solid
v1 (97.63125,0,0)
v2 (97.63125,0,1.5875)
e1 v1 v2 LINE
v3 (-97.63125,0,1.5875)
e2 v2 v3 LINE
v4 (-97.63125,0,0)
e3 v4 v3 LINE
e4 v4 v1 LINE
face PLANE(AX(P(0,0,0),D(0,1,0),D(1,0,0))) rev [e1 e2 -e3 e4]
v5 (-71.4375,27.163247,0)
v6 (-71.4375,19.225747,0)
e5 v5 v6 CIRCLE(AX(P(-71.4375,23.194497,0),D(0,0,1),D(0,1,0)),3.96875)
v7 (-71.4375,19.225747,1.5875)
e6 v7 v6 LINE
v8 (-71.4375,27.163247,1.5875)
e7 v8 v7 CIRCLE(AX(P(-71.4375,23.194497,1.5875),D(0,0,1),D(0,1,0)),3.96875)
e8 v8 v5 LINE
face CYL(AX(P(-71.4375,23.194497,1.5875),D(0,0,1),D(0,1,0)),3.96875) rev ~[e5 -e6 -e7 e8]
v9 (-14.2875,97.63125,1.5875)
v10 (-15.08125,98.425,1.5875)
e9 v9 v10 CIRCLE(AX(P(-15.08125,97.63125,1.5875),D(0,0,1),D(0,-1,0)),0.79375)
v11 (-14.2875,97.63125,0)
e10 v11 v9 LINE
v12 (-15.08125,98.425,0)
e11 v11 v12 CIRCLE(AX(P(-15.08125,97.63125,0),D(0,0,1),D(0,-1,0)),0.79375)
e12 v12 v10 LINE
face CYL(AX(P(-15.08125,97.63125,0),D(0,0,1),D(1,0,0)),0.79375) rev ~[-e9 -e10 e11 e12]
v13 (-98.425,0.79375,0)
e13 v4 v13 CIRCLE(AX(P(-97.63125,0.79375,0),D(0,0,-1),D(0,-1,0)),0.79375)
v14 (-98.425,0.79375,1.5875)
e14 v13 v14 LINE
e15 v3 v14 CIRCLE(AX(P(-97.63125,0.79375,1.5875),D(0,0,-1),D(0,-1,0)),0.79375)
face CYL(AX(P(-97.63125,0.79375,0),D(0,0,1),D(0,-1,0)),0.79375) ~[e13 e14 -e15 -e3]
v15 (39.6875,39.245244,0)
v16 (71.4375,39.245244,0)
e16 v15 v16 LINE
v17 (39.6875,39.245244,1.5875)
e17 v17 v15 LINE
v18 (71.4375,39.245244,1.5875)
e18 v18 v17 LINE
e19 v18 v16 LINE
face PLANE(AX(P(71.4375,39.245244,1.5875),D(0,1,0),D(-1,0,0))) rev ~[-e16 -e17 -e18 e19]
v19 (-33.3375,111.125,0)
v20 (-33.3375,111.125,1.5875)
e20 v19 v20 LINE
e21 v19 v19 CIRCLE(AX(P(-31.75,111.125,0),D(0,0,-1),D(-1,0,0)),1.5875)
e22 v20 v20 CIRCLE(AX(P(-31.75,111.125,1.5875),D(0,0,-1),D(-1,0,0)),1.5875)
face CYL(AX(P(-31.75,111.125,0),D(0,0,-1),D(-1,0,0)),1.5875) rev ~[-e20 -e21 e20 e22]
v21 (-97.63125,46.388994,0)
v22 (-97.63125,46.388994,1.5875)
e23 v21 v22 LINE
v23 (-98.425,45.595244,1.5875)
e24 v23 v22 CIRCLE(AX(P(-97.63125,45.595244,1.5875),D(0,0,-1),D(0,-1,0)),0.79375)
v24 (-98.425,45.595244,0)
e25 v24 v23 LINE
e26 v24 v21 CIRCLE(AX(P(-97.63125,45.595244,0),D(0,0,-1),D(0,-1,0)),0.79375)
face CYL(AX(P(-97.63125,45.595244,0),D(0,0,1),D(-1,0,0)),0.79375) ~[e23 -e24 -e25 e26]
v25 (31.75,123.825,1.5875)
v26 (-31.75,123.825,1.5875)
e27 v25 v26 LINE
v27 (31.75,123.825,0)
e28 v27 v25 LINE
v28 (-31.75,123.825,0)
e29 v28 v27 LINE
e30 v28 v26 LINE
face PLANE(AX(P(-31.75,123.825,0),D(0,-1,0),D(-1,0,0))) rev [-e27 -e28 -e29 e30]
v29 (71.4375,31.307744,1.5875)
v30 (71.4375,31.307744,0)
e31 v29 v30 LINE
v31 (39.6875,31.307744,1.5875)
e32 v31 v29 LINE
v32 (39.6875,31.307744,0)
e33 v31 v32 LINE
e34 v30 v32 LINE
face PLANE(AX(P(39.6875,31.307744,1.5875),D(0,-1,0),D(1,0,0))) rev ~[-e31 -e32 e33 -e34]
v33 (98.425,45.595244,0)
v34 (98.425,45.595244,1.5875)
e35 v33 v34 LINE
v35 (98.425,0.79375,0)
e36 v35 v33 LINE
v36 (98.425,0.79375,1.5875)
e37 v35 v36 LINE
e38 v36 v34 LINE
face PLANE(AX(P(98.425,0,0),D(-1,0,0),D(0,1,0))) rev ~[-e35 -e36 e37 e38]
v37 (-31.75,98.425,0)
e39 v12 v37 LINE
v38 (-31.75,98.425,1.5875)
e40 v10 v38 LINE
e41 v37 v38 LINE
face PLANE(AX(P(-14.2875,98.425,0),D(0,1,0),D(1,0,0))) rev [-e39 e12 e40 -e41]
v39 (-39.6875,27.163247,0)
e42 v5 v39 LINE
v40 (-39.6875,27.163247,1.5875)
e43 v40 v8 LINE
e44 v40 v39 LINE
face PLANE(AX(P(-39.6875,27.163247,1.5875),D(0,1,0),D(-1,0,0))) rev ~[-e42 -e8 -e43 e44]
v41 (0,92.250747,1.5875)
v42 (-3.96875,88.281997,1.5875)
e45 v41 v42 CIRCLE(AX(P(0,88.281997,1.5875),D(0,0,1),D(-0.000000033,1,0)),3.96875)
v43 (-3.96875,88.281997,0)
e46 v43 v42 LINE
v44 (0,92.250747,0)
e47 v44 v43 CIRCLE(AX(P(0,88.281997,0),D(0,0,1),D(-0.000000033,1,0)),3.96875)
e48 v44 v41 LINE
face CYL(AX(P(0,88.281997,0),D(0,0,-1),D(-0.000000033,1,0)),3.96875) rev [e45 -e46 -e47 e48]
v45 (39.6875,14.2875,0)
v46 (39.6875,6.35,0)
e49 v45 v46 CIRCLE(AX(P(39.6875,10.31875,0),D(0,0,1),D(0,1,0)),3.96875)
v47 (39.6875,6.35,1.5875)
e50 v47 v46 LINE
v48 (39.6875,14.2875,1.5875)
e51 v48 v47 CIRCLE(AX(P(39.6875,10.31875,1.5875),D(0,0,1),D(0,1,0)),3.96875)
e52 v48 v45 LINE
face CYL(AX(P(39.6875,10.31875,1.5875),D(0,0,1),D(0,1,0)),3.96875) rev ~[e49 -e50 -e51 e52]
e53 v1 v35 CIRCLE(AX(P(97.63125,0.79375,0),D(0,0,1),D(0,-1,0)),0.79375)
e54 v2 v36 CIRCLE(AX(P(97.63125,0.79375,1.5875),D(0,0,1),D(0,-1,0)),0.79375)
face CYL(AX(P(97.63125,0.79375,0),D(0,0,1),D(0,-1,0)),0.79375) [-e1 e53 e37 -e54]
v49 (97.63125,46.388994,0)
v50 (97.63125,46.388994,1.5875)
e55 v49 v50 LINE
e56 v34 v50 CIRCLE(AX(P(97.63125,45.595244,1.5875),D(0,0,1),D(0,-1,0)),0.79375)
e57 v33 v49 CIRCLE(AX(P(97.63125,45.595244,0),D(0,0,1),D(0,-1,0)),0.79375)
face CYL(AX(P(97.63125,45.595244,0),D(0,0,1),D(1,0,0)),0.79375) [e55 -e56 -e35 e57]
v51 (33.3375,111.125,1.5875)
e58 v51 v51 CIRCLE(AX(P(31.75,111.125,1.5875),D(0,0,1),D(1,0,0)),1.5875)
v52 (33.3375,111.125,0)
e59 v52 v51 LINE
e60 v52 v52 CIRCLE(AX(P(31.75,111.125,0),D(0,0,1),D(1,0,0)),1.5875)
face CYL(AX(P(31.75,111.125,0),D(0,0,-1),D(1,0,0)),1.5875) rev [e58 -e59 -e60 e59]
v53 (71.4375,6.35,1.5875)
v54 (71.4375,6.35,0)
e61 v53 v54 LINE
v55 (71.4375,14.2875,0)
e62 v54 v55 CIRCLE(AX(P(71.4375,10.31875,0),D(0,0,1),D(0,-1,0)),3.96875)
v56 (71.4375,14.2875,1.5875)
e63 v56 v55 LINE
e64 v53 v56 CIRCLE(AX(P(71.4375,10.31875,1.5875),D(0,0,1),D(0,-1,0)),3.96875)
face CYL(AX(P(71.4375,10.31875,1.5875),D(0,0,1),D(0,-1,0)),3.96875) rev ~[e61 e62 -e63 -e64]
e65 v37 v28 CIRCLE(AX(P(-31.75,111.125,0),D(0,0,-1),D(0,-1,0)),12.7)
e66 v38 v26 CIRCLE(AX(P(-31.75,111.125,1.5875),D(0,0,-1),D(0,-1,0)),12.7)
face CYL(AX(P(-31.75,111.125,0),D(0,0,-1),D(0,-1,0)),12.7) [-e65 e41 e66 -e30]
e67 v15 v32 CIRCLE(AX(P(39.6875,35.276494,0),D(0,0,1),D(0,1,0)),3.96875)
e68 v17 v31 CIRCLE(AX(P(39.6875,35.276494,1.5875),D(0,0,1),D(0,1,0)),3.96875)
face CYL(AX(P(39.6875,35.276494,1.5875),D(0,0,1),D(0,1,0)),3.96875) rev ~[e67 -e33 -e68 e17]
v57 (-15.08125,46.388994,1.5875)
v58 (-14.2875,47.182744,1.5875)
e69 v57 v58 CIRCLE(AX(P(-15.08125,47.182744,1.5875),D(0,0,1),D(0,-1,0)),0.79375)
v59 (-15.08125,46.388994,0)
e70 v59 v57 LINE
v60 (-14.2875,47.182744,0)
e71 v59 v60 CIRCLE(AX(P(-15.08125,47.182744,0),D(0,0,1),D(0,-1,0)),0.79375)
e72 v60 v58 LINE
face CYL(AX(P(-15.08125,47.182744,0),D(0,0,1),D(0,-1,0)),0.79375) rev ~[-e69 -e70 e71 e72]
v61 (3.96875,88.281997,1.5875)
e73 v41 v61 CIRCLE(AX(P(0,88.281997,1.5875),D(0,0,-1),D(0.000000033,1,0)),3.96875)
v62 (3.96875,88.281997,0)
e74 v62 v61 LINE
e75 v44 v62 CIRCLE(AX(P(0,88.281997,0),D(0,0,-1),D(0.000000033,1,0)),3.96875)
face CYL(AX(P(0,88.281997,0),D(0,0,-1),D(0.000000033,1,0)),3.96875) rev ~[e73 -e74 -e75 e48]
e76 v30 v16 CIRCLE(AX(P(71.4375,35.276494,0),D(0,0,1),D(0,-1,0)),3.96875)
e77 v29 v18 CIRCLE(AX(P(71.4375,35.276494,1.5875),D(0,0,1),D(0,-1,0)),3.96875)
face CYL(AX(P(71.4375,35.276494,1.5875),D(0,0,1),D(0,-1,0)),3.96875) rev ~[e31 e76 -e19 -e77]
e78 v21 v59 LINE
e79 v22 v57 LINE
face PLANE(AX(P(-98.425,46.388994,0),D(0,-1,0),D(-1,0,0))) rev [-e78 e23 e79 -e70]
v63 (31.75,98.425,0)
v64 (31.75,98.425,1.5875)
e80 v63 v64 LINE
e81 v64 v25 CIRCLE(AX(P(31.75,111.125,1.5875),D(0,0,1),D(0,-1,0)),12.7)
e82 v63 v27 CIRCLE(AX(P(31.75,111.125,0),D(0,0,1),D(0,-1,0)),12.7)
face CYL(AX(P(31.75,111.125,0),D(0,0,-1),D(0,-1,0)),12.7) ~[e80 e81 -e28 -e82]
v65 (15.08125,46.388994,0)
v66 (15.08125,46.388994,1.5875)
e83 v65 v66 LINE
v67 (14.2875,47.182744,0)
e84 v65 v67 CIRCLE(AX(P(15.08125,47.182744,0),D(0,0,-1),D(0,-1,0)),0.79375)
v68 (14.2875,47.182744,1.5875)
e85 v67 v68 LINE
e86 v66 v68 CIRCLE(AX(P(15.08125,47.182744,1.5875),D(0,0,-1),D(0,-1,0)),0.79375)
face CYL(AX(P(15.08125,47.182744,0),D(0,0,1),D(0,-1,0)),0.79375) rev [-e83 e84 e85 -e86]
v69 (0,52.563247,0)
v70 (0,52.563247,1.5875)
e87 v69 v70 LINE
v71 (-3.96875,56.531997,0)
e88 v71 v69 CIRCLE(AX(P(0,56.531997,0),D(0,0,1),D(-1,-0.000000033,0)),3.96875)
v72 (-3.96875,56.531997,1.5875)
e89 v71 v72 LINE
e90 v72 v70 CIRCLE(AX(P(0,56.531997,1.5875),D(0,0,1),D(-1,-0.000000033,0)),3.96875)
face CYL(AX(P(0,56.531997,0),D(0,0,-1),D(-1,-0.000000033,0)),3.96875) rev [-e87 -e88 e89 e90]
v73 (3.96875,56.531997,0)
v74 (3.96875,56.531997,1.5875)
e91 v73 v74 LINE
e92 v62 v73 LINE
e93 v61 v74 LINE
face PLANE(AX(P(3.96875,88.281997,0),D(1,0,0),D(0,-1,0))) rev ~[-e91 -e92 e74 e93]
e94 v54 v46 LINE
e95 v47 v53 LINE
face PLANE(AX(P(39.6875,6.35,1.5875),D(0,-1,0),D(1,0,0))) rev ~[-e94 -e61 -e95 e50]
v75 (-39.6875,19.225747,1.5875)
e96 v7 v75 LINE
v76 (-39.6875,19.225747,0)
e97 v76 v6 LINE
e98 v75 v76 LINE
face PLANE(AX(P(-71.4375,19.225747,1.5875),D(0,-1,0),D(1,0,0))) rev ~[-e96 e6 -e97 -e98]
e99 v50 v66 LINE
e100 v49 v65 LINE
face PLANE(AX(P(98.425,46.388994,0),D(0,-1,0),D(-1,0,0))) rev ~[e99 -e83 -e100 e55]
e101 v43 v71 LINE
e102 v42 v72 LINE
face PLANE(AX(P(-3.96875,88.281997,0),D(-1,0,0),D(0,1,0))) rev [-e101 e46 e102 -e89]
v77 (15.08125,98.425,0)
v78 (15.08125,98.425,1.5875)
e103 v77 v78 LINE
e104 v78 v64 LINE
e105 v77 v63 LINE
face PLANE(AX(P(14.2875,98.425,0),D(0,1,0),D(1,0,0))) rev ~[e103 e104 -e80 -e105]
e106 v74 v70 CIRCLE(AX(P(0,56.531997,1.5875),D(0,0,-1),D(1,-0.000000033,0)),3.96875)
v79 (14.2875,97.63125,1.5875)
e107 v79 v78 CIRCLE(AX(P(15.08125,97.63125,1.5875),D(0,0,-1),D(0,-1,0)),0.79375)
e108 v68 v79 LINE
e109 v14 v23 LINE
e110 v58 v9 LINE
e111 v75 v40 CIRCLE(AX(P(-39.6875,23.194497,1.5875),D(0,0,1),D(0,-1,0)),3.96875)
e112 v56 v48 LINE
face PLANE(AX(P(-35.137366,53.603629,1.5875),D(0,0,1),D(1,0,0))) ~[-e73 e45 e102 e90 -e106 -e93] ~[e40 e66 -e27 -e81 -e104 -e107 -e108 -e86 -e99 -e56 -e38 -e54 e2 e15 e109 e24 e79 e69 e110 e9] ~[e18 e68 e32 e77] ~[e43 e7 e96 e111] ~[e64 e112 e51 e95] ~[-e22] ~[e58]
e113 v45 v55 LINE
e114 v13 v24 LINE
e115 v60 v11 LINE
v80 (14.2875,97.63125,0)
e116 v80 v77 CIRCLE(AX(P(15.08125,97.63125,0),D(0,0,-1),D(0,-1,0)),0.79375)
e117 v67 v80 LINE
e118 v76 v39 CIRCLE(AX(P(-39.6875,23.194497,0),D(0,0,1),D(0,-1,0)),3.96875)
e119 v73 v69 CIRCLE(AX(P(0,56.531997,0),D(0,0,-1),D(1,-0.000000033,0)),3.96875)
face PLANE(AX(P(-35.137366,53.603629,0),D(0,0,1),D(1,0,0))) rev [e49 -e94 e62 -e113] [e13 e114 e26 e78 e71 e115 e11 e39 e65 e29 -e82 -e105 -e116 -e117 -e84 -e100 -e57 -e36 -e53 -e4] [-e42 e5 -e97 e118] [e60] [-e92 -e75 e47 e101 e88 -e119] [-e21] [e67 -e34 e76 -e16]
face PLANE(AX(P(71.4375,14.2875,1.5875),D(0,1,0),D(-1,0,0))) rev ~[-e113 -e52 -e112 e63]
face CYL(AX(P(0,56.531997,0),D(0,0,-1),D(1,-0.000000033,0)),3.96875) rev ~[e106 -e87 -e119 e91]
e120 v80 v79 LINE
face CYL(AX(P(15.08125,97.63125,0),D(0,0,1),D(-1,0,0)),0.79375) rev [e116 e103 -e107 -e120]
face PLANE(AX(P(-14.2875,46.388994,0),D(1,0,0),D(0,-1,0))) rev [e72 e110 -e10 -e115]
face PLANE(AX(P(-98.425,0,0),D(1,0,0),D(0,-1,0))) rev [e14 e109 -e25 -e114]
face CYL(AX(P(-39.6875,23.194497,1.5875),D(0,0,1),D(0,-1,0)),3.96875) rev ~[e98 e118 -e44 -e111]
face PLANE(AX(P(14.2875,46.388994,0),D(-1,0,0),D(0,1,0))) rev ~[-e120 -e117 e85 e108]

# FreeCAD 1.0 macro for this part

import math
import FreeCAD as App
import Part
import Sketcher

V = App.Vector
Q = App.Units.Quantity


def edges_at(feature, points):
    """Names of the edges that pass closest to the given points."""
    edges = feature.Shape.Edges
    near = lambda p: min(range(len(edges)), key=lambda i: edges[i].distToShape(Part.Vertex(*p))[0])
    return sorted({f"Edge{near(p) + 1}" for p in points})

doc = App.newDocument("Part")
body = doc.addObject("PartDesign::Body", "Body")

# Sketch on XY plane
sketch1 = doc.addObject("Sketcher::SketchObject", "Sketch")
body.addObject(sketch1)
sketch1.AttachmentSupport = (doc.XY_Plane, [""])
sketch1.MapMode = "FlatFace"
sketch1.addGeometry([
    Part.LineSegment(V(0, 52.6, 0), V(0, 0, 0)),  # 0
    Part.LineSegment(V(0, 0, 0), V(98.4, 0, 0)),  # 1
    Part.LineSegment(V(98.4, 0, 0), V(98.4, 46.4, 0)),  # 2
    Part.LineSegment(V(98.4, 46.4, 0), V(14.3, 46.4, 0)),  # 3
    Part.LineSegment(V(14.3, 46.4, 0), V(14.3, 98.4, 0)),  # 4
    Part.LineSegment(V(14.3, 98.4, 0), V(31.8, 98.4, 0)),  # 5
    Part.ArcOfCircle(Part.Circle(V(31.8, 111.1, 0), V(0, 0, 1), 12.7), math.radians(-90), math.radians(90)),  # 6
    Part.LineSegment(V(31.8, 123.8, 0), V(0, 123.8, 0)),  # 7
    Part.LineSegment(V(0, 123.8, 0), V(0, 92.3, 0)),  # 8
    Part.ArcOfCircle(Part.Circle(V(0, 88.3, 0), V(0, 0, 1), 4), math.radians(0), math.radians(90)),  # 9
    Part.LineSegment(V(4, 88.3, 0), V(4, 56.5, 0)),  # 10
    Part.ArcOfCircle(Part.Circle(V(0, 56.5, 0), V(0, 0, 1), 4), math.radians(-90), math.radians(0)),  # 11
    Part.Circle(V(31.8, 111.1, 0), V(0, 0, 1), 1.6),  # 12
], False)
sketch1.addConstraint([
    Sketcher.Constraint("Coincident", 0, 2, 1, 1),
    Sketcher.Constraint("Coincident", 1, 2, 2, 1),
    Sketcher.Constraint("Coincident", 2, 2, 3, 1),
    Sketcher.Constraint("Coincident", 3, 2, 4, 1),
    Sketcher.Constraint("Coincident", 4, 2, 5, 1),
    Sketcher.Constraint("Tangent", 5, 2, 6, 1),
    Sketcher.Constraint("Tangent", 6, 2, 7, 1),
    Sketcher.Constraint("Coincident", 7, 2, 8, 1),
    Sketcher.Constraint("Coincident", 8, 2, 9, 2),
    Sketcher.Constraint("Tangent", 9, 1, 10, 1),
    Sketcher.Constraint("Tangent", 10, 2, 11, 2),
    Sketcher.Constraint("Coincident", 11, 1, 0, 1),
    Sketcher.Constraint("Vertical", 0),
    Sketcher.Constraint("Horizontal", 1),
    Sketcher.Constraint("Vertical", 2),
    Sketcher.Constraint("Horizontal", 3),
    Sketcher.Constraint("Vertical", 4),
    Sketcher.Constraint("Horizontal", 5),
    Sketcher.Constraint("Horizontal", 7),
    Sketcher.Constraint("Vertical", 8),
    Sketcher.Constraint("Vertical", 10),
    Sketcher.Constraint("Coincident", 0, 2, -1, 1),
    Sketcher.Constraint("Coincident", 12, 3, 6, 3),
    Sketcher.Constraint("Equal", 9, 11),
    Sketcher.Constraint("PointOnObject", 9, 3, -2),
    Sketcher.Constraint("PointOnObject", 7, 2, -2),
    Sketcher.Constraint("Equal", 7, 10),
    Sketcher.Constraint("Radius", 6, Q("0.5 in")),
    Sketcher.Constraint("Diameter", 12, Q("0.125 in")),
    Sketcher.Constraint("Radius", 9, Q("0.15625 in")),
    Sketcher.Constraint("DistanceX", 7, 2, 7, 1, Q("1.25 in")),
    Sketcher.Constraint("DistanceX", 1, 1, 1, 2, Q("3.875 in")),
    Sketcher.Constraint("DistanceX", 3, 2, 3, 1, Q("3.3125 in")),
    Sketcher.Constraint("DistanceY", -1, 1, 6, 3, Q("4.375 in")),
    Sketcher.Constraint("DistanceY", 0, 2, 0, 1, 52.563247),
    Sketcher.Constraint("DistanceY", 2, 1, 2, 2, 46.388994),
])
pad1 = doc.addObject("PartDesign::Pad", "Pad")
body.addObject(pad1)
pad1.Profile = sketch1
pad1.Length = Q("0.0625 in")
doc.recompute()

fillet = doc.addObject("PartDesign::Fillet", "Fillet")
body.addObject(fillet)
fillet.Base = (pad1, edges_at(pad1, [
    (14.287, 98.425, 0.794),
    (14.287, 46.389, 0.794),
    (98.425, 46.389, 0.794),
    (98.425, 0, 0.794),
]))
fillet.Radius = Q("0.03125 in")
body2 = doc.addObject("PartDesign::Body", "Body001")
doc.recompute()

body2.BaseFeature = body
doc.recompute()

mirroring = doc.addObject("Part::Mirroring", "Mirroring")
mirroring.Source = body
mirroring.Base = V(0, 0, 0)
mirroring.Normal = V(1, 0, 0)
body3 = doc.addObject("PartDesign::Body", "Body002")
body3.BaseFeature = mirroring
boolean = doc.addObject("PartDesign::Boolean", "Boolean")
body2.addObject(boolean)
boolean.Type = "Fuse"
boolean.addObjects([body3])
doc.recompute()

# Sketch on XY plane
sketch2 = doc.addObject("Sketcher::SketchObject", "Sketch001")
body2.addObject(sketch2)
sketch2.AttachmentSupport = (doc.getObject("XY_Plane001"), [""])
sketch2.MapMode = "FlatFace"
sketch2.AttachmentOffset = App.Placement(V(0, 0, 0.0625 * 25.4), App.Rotation())
sketch2.addGeometry([
    Part.ArcOfCircle(Part.Circle(V(-71.4, 23.2, 0), V(0, 0, 1), 4), math.radians(90), math.radians(270)),  # 0
    Part.LineSegment(V(-71.4, 19.2, 0), V(-39.7, 19.2, 0)),  # 1
    Part.ArcOfCircle(Part.Circle(V(-39.7, 23.2, 0), V(0, 0, 1), 4), math.radians(-90), math.radians(90)),  # 2
    Part.LineSegment(V(-39.7, 27.2, 0), V(-71.4, 27.2, 0)),  # 3
    Part.LineSegment(V(71.4, 39.2, 0), V(39.7, 39.2, 0)),  # 4
    Part.ArcOfCircle(Part.Circle(V(39.7, 35.3, 0), V(0, 0, 1), 4), math.radians(90), math.radians(270)),  # 5
    Part.LineSegment(V(39.7, 31.3, 0), V(71.4, 31.3, 0)),  # 6
    Part.ArcOfCircle(Part.Circle(V(71.4, 35.3, 0), V(0, 0, 1), 4), math.radians(-90), math.radians(90)),  # 7
    Part.ArcOfCircle(Part.Circle(V(39.7, 10.3, 0), V(0, 0, 1), 4), math.radians(90), math.radians(270)),  # 8
    Part.LineSegment(V(39.7, 6.3, 0), V(71.4, 6.3, 0)),  # 9
    Part.ArcOfCircle(Part.Circle(V(71.4, 10.3, 0), V(0, 0, 1), 4), math.radians(-90), math.radians(90)),  # 10
    Part.LineSegment(V(71.4, 14.3, 0), V(39.7, 14.3, 0)),  # 11
], False)
sketch2.addConstraint([
    Sketcher.Constraint("Tangent", 0, 2, 1, 1),
    Sketcher.Constraint("Tangent", 1, 2, 2, 1),
    Sketcher.Constraint("Tangent", 2, 2, 3, 1),
    Sketcher.Constraint("Tangent", 3, 2, 0, 1),
    Sketcher.Constraint("Tangent", 4, 2, 5, 1),
    Sketcher.Constraint("Tangent", 5, 2, 6, 1),
    Sketcher.Constraint("Tangent", 6, 2, 7, 1),
    Sketcher.Constraint("Tangent", 7, 2, 4, 1),
    Sketcher.Constraint("Tangent", 8, 2, 9, 1),
    Sketcher.Constraint("Tangent", 9, 2, 10, 1),
    Sketcher.Constraint("Tangent", 10, 2, 11, 1),
    Sketcher.Constraint("Tangent", 11, 2, 8, 1),
    Sketcher.Constraint("Horizontal", 1),
    Sketcher.Constraint("Horizontal", 3),
    Sketcher.Constraint("Horizontal", 4),
    Sketcher.Constraint("Horizontal", 6),
    Sketcher.Constraint("Horizontal", 9),
    Sketcher.Constraint("Horizontal", 11),
    Sketcher.Constraint("Equal", 2, 5),
    Sketcher.Constraint("Equal", 7, 8),
    Sketcher.Constraint("Vertical", 5, 3, 8, 3),
    Sketcher.Constraint("Vertical", 7, 3, 10, 3),
    Sketcher.Constraint("Equal", 3, 4),
    Sketcher.Constraint("Radius", 0, Q("0.15625 in")),
    Sketcher.Constraint("DistanceX", 1, 1, 1, 2, Q("1.25 in")),
    Sketcher.Constraint("DistanceY", -1, 1, 8, 2, Q("0.25 in")),
    Sketcher.Constraint("DistanceX", 0, 3, -1, 1, Q("2.8125 in")),
    Sketcher.Constraint("DistanceX", -1, 1, 5, 3, Q("1.5625 in")),
    Sketcher.Constraint("DistanceY", -1, 1, 0, 3, 23.194497),
    Sketcher.Constraint("DistanceY", -1, 1, 5, 3, 35.276494),
])
pocket1 = doc.addObject("PartDesign::Pocket", "Pocket")
body2.addObject(pocket1)
pocket1.Profile = sketch2
pocket1.Type = "ThroughAll"
mirroring.Visibility = False

doc.recompute()
